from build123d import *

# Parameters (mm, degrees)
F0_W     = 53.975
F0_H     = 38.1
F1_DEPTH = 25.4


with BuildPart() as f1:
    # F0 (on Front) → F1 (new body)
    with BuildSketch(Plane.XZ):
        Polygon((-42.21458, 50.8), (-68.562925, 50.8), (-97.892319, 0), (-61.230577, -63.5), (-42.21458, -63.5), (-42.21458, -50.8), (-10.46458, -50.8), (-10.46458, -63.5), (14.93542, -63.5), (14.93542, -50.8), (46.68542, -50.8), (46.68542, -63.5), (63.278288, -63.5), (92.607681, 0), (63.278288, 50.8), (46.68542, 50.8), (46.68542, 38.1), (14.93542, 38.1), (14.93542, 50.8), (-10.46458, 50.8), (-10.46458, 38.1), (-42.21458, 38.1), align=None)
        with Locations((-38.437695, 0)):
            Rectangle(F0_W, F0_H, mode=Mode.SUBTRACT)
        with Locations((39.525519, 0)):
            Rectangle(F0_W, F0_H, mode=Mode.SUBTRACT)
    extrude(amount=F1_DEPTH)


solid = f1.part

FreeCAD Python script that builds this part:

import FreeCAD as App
import Part
import Sketcher
Q = App.Units.Quantity

doc = App.newDocument("Part")
body = doc.addObject("PartDesign::Body", "Body")

# Sketch on XZ plane
sketch1 = doc.addObject("Sketcher::SketchObject", "Sketch")
body.addObject(sketch1)
sketch1.AttachmentSupport = (doc.XZ_Plane, [""])
sketch1.MapMode = "FlatFace"
sketch1.addGeometry(Part.LineSegment(App.Vector(-42, 51, 0), App.Vector(-69, 51, 0)), False)
sketch1.addGeometry(Part.LineSegment(App.Vector(-69, 51, 0), App.Vector(-98, 0, 0)), False)
sketch1.addGeometry(Part.LineSegment(App.Vector(-98, 0, 0), App.Vector(-61, -64, 0)), False)
sketch1.addGeometry(Part.LineSegment(App.Vector(-61, -64, 0), App.Vector(-42, -64, 0)), False)
sketch1.addGeometry(Part.LineSegment(App.Vector(-42, -64, 0), App.Vector(-42, -51, 0)), False)
sketch1.addGeometry(Part.LineSegment(App.Vector(-42, -51, 0), App.Vector(-10, -51, 0)), False)
sketch1.addGeometry(Part.LineSegment(App.Vector(-10, -51, 0), App.Vector(-10, -64, 0)), False)
sketch1.addGeometry(Part.LineSegment(App.Vector(-10, -64, 0), App.Vector(15, -64, 0)), False)
sketch1.addGeometry(Part.LineSegment(App.Vector(15, -64, 0), App.Vector(15, -51, 0)), False)
sketch1.addGeometry(Part.LineSegment(App.Vector(15, -51, 0), App.Vector(47, -51, 0)), False)
sketch1.addGeometry(Part.LineSegment(App.Vector(47, -51, 0), App.Vector(47, -64, 0)), False)
sketch1.addGeometry(Part.LineSegment(App.Vector(47, -64, 0), App.Vector(63, -64, 0)), False)
sketch1.addGeometry(Part.LineSegment(App.Vector(63, -64, 0), App.Vector(93, 0, 0)), False)
sketch1.addGeometry(Part.LineSegment(App.Vector(93, 0, 0), App.Vector(63, 51, 0)), False)
sketch1.addGeometry(Part.LineSegment(App.Vector(63, 51, 0), App.Vector(47, 51, 0)), False)
sketch1.addGeometry(Part.LineSegment(App.Vector(47, 51, 0), App.Vector(47, 38, 0)), False)
sketch1.addGeometry(Part.LineSegment(App.Vector(47, 38, 0), App.Vector(15, 38, 0)), False)
sketch1.addGeometry(Part.LineSegment(App.Vector(15, 38, 0), App.Vector(15, 51, 0)), False)
sketch1.addGeometry(Part.LineSegment(App.Vector(15, 51, 0), App.Vector(-10, 51, 0)), False)
sketch1.addGeometry(Part.LineSegment(App.Vector(-10, 51, 0), App.Vector(-10, 38, 0)), False)
sketch1.addGeometry(Part.LineSegment(App.Vector(-10, 38, 0), App.Vector(-42, 38, 0)), False)
sketch1.addGeometry(Part.LineSegment(App.Vector(-42, 38, 0), App.Vector(-42, 51, 0)), False)
sketch1.addGeometry(Part.LineSegment(App.Vector(-11, -19, 0), App.Vector(-65, -19, 0)), False)
sketch1.addGeometry(Part.LineSegment(App.Vector(-65, -19, 0), App.Vector(-65, 19, 0)), False)
sketch1.addGeometry(Part.LineSegment(App.Vector(-65, 19, 0), App.Vector(-11, 19, 0)), False)
sketch1.addGeometry(Part.LineSegment(App.Vector(-11, 19, 0), App.Vector(-11, -19, 0)), False)
sketch1.addGeometry(Part.LineSegment(App.Vector(67, -19, 0), App.Vector(13, -19, 0)), False)
sketch1.addGeometry(Part.LineSegment(App.Vector(13, -19, 0), App.Vector(13, 19, 0)), False)
sketch1.addGeometry(Part.LineSegment(App.Vector(13, 19, 0), App.Vector(67, 19, 0)), False)
sketch1.addGeometry(Part.LineSegment(App.Vector(67, 19, 0), App.Vector(67, -19, 0)), False)
sketch1.addConstraint(Sketcher.Constraint("Coincident", 0, 2, 1, 1))
sketch1.addConstraint(Sketcher.Constraint("Coincident", 1, 2, 2, 1))
sketch1.addConstraint(Sketcher.Constraint("Coincident", 2, 2, 3, 1))
sketch1.addConstraint(Sketcher.Constraint("Coincident", 3, 2, 4, 1))
sketch1.addConstraint(Sketcher.Constraint("Coincident", 4, 2, 5, 1))
sketch1.addConstraint(Sketcher.Constraint("Coincident", 5, 2, 6, 1))
sketch1.addConstraint(Sketcher.Constraint("Coincident", 6, 2, 7, 1))
sketch1.addConstraint(Sketcher.Constraint("Coincident", 7, 2, 8, 1))
sketch1.addConstraint(Sketcher.Constraint("Coincident", 8, 2, 9, 1))
sketch1.addConstraint(Sketcher.Constraint("Coincident", 9, 2, 10, 1))
sketch1.addConstraint(Sketcher.Constraint("Coincident", 10, 2, 11, 1))
sketch1.addConstraint(Sketcher.Constraint("Coincident", 11, 2, 12, 1))
sketch1.addConstraint(Sketcher.Constraint("Coincident", 12, 2, 13, 1))
sketch1.addConstraint(Sketcher.Constraint("Coincident", 13, 2, 14, 1))
sketch1.addConstraint(Sketcher.Constraint("Coincident", 14, 2, 15, 1))
sketch1.addConstraint(Sketcher.Constraint("Coincident", 15, 2, 16, 1))
sketch1.addConstraint(Sketcher.Constraint("Coincident", 16, 2, 17, 1))
sketch1.addConstraint(Sketcher.Constraint("Coincident", 17, 2, 18, 1))
sketch1.addConstraint(Sketcher.Constraint("Coincident", 18, 2, 19, 1))
sketch1.addConstraint(Sketcher.Constraint("Coincident", 19, 2, 20, 1))
sketch1.addConstraint(Sketcher.Constraint("Coincident", 20, 2, 21, 1))
sketch1.addConstraint(Sketcher.Constraint("Coincident", 21, 2, 0, 1))
sketch1.addConstraint(Sketcher.Constraint("Coincident", 22, 2, 23, 1))
sketch1.addConstraint(Sketcher.Constraint("Coincident", 23, 2, 24, 1))
sketch1.addConstraint(Sketcher.Constraint("Coincident", 24, 2, 25, 1))
sketch1.addConstraint(Sketcher.Constraint("Coincident", 25, 2, 22, 1))
sketch1.addConstraint(Sketcher.Constraint("Coincident", 26, 2, 27, 1))
sketch1.addConstraint(Sketcher.Constraint("Coincident", 27, 2, 28, 1))
sketch1.addConstraint(Sketcher.Constraint("Coincident", 28, 2, 29, 1))
sketch1.addConstraint(Sketcher.Constraint("Coincident", 29, 2, 26, 1))
sketch1.addConstraint(Sketcher.Constraint("Horizontal", 0))
sketch1.addConstraint(Sketcher.Constraint("Horizontal", 3))
sketch1.addConstraint(Sketcher.Constraint("Vertical", 4))
sketch1.addConstraint(Sketcher.Constraint("Horizontal", 5))
sketch1.addConstraint(Sketcher.Constraint("Vertical", 6))
sketch1.addConstraint(Sketcher.Constraint("Horizontal", 7))
sketch1.addConstraint(Sketcher.Constraint("Vertical", 8))
sketch1.addConstraint(Sketcher.Constraint("Horizontal", 9))
sketch1.addConstraint(Sketcher.Constraint("Vertical", 10))
sketch1.addConstraint(Sketcher.Constraint("Horizontal", 11))
sketch1.addConstraint(Sketcher.Constraint("Horizontal", 14))
sketch1.addConstraint(Sketcher.Constraint("Vertical", 15))
sketch1.addConstraint(Sketcher.Constraint("Horizontal", 16))
sketch1.addConstraint(Sketcher.Constraint("Vertical", 17))
sketch1.addConstraint(Sketcher.Constraint("Horizontal", 18))
sketch1.addConstraint(Sketcher.Constraint("Vertical", 19))
sketch1.addConstraint(Sketcher.Constraint("Horizontal", 20))
sketch1.addConstraint(Sketcher.Constraint("Vertical", 21))
sketch1.addConstraint(Sketcher.Constraint("Horizontal", 22))
sketch1.addConstraint(Sketcher.Constraint("Vertical", 23))
sketch1.addConstraint(Sketcher.Constraint("Horizontal", 24))
sketch1.addConstraint(Sketcher.Constraint("Vertical", 25))
sketch1.addConstraint(Sketcher.Constraint("Horizontal", 26))
sketch1.addConstraint(Sketcher.Constraint("Vertical", 27))
sketch1.addConstraint(Sketcher.Constraint("Horizontal", 28))
sketch1.addConstraint(Sketcher.Constraint("Vertical", 29))
sketch1.addConstraint(Sketcher.Constraint("Symmetric", 9, 2, 14, 2, -1))
sketch1.addConstraint(Sketcher.Constraint("Symmetric", 8, 2, 17, 2, -1))
sketch1.addConstraint(Sketcher.Constraint("Symmetric", 5, 2, 18, 2, -1))
sketch1.addConstraint(Sketcher.Constraint("Symmetric", 4, 2, 21, 2, -1))
sketch1.addConstraint(Sketcher.Constraint("PointOnObject", 1, 2, -1))
sketch1.addConstraint(Sketcher.Constraint("PointOnObject", 12, 2, -1))
sketch1.addConstraint(Sketcher.Constraint("Parallel", 2, 13))
sketch1.addConstraint(Sketcher.Constraint("Horizontal", 3, 2, 6, 2))
sketch1.addConstraint(Sketcher.Constraint("Horizontal", 7, 2, 10, 2))
sketch1.addConstraint(Sketcher.Constraint("Horizontal", 16, 2, 19, 2))
sketch1.addConstraint(Sketcher.Constraint("Horizontal", 25, 2, 26, 2))
sketch1.addConstraint(Sketcher.Constraint("Horizontal", 24, 2, 27, 2))
sketch1.addConstraint(Sketcher.Constraint("Vertical", 11, 2, 13, 2))
sketch1.addConstraint(Sketcher.Constraint("Equal", 5, 9))
sketch1.addConstraint(Sketcher.Constraint("Equal", 24, 26))
sketch1.addConstraint(Sketcher.Constraint("Equal", 10, 15))
sketch1.addConstraint(Sketcher.Constraint("Equal", 1, 13))
sketch1.addConstraint(Sketcher.Constraint("DistanceX", 7, 1, 7, 2, Q("1 in")))
sketch1.addConstraint(Sketcher.Constraint("DistanceY", 4, 1, 4, 2, Q("0.5 in")))
sketch1.addConstraint(Sketcher.Constraint("DistanceY", 23, 1, 23, 2, Q("1.5 in")))
sketch1.addConstraint(Sketcher.Constraint("DistanceY", -1, 1, 0, 2, Q("2 in")))
sketch1.addConstraint(Sketcher.Constraint("Angle", 1, Q("-120 deg")))
sketch1.addConstraint(Sketcher.Constraint("DistanceX", 5, 1, 5, 2, Q("1.25 in")))
sketch1.addConstraint(Sketcher.Constraint("DistanceX", 22, 2, 22, 1, Q("2.125 in")))
sketch1.addConstraint(Sketcher.Constraint("DistanceY", 22, 2, -1, 1, Q("0.75 in")))
sketch1.addConstraint(Sketcher.Constraint("DistanceX", 11, 1, 11, 2, Q("16.592868 mm")))
sketch1.addConstraint(Sketcher.Constraint("DistanceX", 26, 2, 8, 2, Q("2.397401 mm")))
sketch1.addConstraint(Sketcher.Constraint("DistanceX", 0, 2, 0, 1, Q("26.348345 mm")))
sketch1.addConstraint(Sketcher.Constraint("DistanceX", 1, 2, -1, 1, Q("97.892319 mm")))
sketch1.addConstraint(Sketcher.Constraint("DistanceX", 22, 2, 2, 2, Q("4.194618 mm")))
pad1 = doc.addObject("PartDesign::Pad", "Pad")
body.addObject(pad1)
pad1.Profile = sketch1
pad1.Length = Q("1 in")

doc.recompute()
